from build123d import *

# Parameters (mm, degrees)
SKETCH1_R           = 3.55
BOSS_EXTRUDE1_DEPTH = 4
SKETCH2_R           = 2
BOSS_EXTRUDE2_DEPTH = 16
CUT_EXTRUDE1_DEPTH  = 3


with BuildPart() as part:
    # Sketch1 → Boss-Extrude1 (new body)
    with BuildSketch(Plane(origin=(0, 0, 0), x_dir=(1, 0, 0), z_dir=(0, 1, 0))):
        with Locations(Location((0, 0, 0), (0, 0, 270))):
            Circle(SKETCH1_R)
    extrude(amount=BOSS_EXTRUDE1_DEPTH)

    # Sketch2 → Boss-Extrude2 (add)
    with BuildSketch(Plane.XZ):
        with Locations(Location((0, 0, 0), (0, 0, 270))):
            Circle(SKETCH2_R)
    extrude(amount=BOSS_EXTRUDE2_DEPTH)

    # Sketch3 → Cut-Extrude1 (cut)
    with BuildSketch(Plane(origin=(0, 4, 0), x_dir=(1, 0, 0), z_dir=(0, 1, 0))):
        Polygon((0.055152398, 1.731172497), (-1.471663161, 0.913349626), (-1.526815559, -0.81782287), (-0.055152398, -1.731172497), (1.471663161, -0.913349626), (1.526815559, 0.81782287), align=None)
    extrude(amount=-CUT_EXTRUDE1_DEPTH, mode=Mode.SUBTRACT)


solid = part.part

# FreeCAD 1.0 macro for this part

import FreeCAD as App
import Part
import Sketcher

V = App.Vector
Q = App.Units.Quantity

doc = App.newDocument("Part")
body = doc.addObject("PartDesign::Body", "Body")

sketch1 = body.newObject("Sketcher::SketchObject", "Sketch")
sketch1.AttachmentSupport = (doc.getObject("XZ_Plane"), [""])
sketch1.MapMode = "FlatFace"
sketch1.addGeometry(Part.Circle(V(0, 0, 0), V(0, 0, 1), 3.55), False)
sketch1.addConstraint([
    Sketcher.Constraint("Coincident", 0, 3, -1, 1),
    Sketcher.Constraint("Diameter", 0, Q("7.1 mm")),
])
pad1 = body.newObject("PartDesign::Pad", "Pad")
pad1.Profile = sketch1
pad1.Length = 4
pad1.Reversed = True

sketch2 = body.newObject("Sketcher::SketchObject", "Sketch001")
sketch2.AttachmentSupport = (doc.getObject("XZ_Plane"), [""])
sketch2.MapMode = "FlatFace"
sketch2.addGeometry(Part.Circle(V(0, 0, 0), V(0, 0, 1), 2), False)
sketch2.addConstraint([
    Sketcher.Constraint("Coincident", 0, 3, -1, 1),
    Sketcher.Constraint("Diameter", 0, Q("4 mm")),
])
pad2 = body.newObject("PartDesign::Pad", "Pad001")
pad2.Profile = sketch2
pad2.Length = 16

sketch3 = body.newObject("Sketcher::SketchObject", "Sketch002")
sketch3.AttachmentSupport = (doc.getObject("XZ_Plane"), [""])
sketch3.MapMode = "FlatFace"
sketch3.AttachmentOffset = App.Placement(V(0, 0, -4), App.Rotation())
sketch3.addGeometry([
    Part.LineSegment(V(0.055152, -1.731172, 0), V(-1.471663, -0.91335, 0)),
    Part.LineSegment(V(-1.471663, -0.91335, 0), V(-1.526816, 0.817823, 0)),
    Part.LineSegment(V(-1.526816, 0.817823, 0), V(-0.055152, 1.731172, 0)),
    Part.LineSegment(V(-0.055152, 1.731172, 0), V(1.471663, 0.91335, 0)),
    Part.LineSegment(V(1.471663, 0.91335, 0), V(1.526816, -0.817823, 0)),
    Part.LineSegment(V(1.526816, -0.817823, 0), V(0.055152, -1.731172, 0)),
], False)
sketch3.addConstraint([
    Sketcher.Constraint("Coincident", 0, 2, 1, 1),
    Sketcher.Constraint("Coincident", 1, 2, 2, 1),
    Sketcher.Constraint("Coincident", 2, 2, 3, 1),
    Sketcher.Constraint("Coincident", 3, 2, 4, 1),
    Sketcher.Constraint("Coincident", 4, 2, 5, 1),
    Sketcher.Constraint("Coincident", 5, 2, 0, 1),
    Sketcher.Constraint("Symmetric", 0, 2, 3, 2, -1, 1),
    Sketcher.Constraint("Symmetric", 1, 2, 4, 2, -1, 1),
    Sketcher.Constraint("Symmetric", 2, 2, 5, 2, -1, 1),
    Sketcher.Constraint("Equal", 0, 1),
    Sketcher.Constraint("Equal", 1, 2),
    Sketcher.Constraint("DistanceY", 0, 2, 3, 2, Q("1.826699 mm")),
    Sketcher.Constraint("Distance", 0, Q("1.732051 mm")),
    Sketcher.Constraint("DistanceY", 1, 2, 2, 2, Q("0.91335 mm")),
    Sketcher.Constraint("DistanceX", 0, 2, 2, 2, Q("1.416511 mm")),
])
pocket1 = body.newObject("PartDesign::Pocket", "Pocket")
pocket1.Profile = sketch3
pocket1.Length = 3
pocket1.Reversed = True

doc.recompute()
